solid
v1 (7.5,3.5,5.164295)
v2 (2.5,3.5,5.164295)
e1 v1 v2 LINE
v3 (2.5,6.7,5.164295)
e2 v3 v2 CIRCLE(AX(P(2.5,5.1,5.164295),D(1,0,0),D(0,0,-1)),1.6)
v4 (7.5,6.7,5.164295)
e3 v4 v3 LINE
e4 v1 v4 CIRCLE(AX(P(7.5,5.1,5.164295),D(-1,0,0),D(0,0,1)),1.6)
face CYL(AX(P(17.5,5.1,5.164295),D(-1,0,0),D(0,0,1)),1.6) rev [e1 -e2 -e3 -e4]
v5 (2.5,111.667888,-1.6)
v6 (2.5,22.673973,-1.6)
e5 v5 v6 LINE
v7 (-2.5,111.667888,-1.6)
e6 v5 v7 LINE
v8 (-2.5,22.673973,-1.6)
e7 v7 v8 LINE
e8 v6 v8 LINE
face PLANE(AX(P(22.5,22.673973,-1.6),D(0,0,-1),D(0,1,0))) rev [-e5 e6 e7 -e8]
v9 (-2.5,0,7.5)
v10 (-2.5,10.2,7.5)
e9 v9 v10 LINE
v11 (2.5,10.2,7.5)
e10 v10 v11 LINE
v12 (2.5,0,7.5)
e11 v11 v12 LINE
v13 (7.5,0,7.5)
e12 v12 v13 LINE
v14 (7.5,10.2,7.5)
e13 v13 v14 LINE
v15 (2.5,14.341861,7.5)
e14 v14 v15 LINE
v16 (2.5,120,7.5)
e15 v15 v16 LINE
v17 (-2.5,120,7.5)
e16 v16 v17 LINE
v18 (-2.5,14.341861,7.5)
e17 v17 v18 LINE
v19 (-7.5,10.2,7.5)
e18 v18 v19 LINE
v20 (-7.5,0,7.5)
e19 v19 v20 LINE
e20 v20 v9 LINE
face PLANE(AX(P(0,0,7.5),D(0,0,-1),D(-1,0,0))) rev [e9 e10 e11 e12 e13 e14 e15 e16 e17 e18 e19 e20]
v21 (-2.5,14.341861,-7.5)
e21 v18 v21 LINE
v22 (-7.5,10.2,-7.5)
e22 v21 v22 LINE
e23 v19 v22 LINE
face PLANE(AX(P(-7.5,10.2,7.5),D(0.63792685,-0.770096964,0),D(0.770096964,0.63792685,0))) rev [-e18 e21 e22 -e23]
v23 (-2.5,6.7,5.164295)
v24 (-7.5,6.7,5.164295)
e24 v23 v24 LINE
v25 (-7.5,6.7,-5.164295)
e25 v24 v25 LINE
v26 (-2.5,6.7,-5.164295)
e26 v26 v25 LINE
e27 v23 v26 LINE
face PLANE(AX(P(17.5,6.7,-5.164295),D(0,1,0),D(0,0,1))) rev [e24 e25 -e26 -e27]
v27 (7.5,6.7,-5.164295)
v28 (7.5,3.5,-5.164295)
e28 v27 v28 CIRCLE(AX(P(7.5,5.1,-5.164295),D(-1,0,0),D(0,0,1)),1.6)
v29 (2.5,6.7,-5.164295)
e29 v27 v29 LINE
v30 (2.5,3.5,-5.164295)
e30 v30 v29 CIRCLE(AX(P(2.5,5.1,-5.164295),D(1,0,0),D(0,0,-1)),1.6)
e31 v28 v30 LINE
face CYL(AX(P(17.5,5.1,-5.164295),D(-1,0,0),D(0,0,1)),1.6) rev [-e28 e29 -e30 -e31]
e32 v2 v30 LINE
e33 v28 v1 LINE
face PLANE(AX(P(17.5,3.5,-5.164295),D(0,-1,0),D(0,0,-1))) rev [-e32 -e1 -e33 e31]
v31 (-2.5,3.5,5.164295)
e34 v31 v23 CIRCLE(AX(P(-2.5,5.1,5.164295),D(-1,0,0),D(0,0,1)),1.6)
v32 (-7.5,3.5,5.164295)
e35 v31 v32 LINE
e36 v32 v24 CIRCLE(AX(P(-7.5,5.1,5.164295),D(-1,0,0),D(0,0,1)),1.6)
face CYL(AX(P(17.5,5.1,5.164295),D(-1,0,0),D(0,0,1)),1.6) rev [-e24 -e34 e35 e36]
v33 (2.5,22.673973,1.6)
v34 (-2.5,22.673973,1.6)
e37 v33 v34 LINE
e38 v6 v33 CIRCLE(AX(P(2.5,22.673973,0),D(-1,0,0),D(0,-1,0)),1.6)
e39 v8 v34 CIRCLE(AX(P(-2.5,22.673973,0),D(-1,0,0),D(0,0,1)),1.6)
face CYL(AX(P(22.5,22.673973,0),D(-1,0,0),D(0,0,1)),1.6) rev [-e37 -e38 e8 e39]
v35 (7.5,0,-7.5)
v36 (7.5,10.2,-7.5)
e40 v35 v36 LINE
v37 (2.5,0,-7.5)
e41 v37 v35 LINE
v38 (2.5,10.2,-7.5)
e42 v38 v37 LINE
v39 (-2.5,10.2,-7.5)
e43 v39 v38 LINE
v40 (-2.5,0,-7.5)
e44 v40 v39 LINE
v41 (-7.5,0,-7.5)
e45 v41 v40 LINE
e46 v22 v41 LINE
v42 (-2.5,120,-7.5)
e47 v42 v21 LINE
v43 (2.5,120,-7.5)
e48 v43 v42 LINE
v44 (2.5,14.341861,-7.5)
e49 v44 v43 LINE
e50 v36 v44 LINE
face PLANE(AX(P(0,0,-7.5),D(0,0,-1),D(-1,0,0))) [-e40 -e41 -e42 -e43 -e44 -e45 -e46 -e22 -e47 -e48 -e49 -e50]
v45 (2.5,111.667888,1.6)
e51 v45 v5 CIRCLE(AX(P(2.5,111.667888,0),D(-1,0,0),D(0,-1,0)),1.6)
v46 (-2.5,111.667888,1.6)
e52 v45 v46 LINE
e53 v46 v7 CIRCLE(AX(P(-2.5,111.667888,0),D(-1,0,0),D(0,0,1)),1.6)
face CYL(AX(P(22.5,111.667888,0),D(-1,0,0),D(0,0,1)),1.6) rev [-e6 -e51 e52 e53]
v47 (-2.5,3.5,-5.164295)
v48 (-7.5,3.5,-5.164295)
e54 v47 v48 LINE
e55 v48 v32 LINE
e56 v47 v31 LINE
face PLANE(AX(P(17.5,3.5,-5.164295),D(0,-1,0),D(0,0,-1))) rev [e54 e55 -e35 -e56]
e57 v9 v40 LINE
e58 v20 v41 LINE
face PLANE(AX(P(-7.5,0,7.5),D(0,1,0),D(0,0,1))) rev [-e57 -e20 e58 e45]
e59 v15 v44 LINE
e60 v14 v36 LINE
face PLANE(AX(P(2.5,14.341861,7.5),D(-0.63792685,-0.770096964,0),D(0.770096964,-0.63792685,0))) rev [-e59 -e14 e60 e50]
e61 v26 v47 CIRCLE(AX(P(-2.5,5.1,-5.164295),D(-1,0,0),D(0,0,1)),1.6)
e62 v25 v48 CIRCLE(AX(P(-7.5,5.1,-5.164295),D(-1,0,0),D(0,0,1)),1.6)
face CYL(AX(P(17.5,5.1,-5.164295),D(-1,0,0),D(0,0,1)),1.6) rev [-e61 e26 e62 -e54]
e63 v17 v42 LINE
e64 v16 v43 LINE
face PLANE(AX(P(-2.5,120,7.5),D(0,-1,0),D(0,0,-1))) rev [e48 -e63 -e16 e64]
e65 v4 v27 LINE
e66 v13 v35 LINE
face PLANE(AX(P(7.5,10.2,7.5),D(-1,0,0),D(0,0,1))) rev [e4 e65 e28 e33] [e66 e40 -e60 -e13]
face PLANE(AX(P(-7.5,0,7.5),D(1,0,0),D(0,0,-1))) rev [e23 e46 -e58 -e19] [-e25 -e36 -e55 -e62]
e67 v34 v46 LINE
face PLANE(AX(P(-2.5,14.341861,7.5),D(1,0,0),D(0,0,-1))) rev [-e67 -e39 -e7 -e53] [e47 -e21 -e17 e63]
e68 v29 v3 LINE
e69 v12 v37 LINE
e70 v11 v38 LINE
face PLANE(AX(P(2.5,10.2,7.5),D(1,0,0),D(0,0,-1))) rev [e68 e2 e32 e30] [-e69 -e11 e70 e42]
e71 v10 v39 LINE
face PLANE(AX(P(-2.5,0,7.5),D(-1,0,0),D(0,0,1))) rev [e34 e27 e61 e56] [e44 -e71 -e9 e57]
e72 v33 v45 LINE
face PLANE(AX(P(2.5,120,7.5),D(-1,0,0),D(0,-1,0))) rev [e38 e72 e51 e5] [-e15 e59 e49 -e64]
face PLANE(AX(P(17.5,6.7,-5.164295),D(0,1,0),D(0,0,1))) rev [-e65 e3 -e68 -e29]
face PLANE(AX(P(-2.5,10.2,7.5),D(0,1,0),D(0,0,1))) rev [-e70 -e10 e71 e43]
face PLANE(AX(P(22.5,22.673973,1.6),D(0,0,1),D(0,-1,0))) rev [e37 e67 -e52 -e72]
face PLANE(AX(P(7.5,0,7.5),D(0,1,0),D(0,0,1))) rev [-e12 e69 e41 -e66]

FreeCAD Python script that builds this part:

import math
import FreeCAD as App
import Part
import Sketcher
Q = App.Units.Quantity


def add_polygon(sketch, points):
    """Adds a closed chain of lines whose ends are joined by coincident constraints."""
    first, n = sketch.GeometryCount, len(points)
    for a, b in zip(points, points[1:] + points[:1]):
        sketch.addGeometry(Part.LineSegment(App.Vector(*a, 0), App.Vector(*b, 0)), False)
    for i in range(n):
        sketch.addConstraint(Sketcher.Constraint("Coincident", first + i, 2, first + (i + 1) % n, 1))

doc = App.newDocument("Part")
body = doc.addObject("PartDesign::Body", "Body")

# Sketch on XY plane
sketch1 = doc.addObject("Sketcher::SketchObject", "Sketch")
body.addObject(sketch1)
sketch1.AttachmentSupport = (doc.XY_Plane, [""])
sketch1.MapMode = "FlatFace"
add_polygon(sketch1, [(-8, 0), (-2, 0), (-2, 10), (2, 10), (2, 0), (8, 0), (8, 10), (2, 14), (2, 120), (-2, 120), (-2, 14), (-8, 10)])  # lines 0-11
sketch1.addConstraint([
    Sketcher.Constraint("Horizontal", 0),
    Sketcher.Constraint("Vertical", 1),
    Sketcher.Constraint("Horizontal", 2),
    Sketcher.Constraint("Vertical", 3),
    Sketcher.Constraint("Horizontal", 4),
    Sketcher.Constraint("Vertical", 5),
    Sketcher.Constraint("Vertical", 7),
    Sketcher.Constraint("Horizontal", 8),
    Sketcher.Constraint("Vertical", 9),
    Sketcher.Constraint("Vertical", 11),
    Sketcher.Constraint("Symmetric", 0, 2, 3, 2, -1, 1),
    Sketcher.Constraint("Symmetric", 6, 2, 9, 2, -2),
    Sketcher.Constraint("Symmetric", 5, 2, 10, 2, -2),
    Sketcher.Constraint("PointOnObject", 0, 2, -1),
    Sketcher.Constraint("Horizontal", 2, 2, 5, 2),
    Sketcher.Constraint("Vertical", 3, 2, 6, 2),
    Sketcher.Constraint("Equal", 0, 2),
    Sketcher.Constraint("DistanceX", 0, 1, 0, 2, Q("5 mm")),
    Sketcher.Constraint("DistanceY", 1, 1, 1, 2, Q("10.2 mm")),
    Sketcher.Constraint("DistanceY", -1, 1, 7, 2, Q("120 mm")),
    Sketcher.Constraint("DistanceY", 7, 1, 7, 2, Q("105.658139 mm")),
])
pad1 = doc.addObject("PartDesign::Pad", "Pad")
body.addObject(pad1)
pad1.Profile = sketch1
pad1.Length = 15
pad1.Midplane = True

# Sketch on YZ plane
sketch2 = doc.addObject("Sketcher::SketchObject", "Sketch001")
body.addObject(sketch2)
sketch2.AttachmentSupport = (doc.YZ_Plane, [""])
sketch2.MapMode = "FlatFace"
sketch2.AttachmentOffset = App.Placement(App.Vector(0, 0, -7.5), App.Rotation())
sketch2.addGeometry([
    Part.LineSegment(App.Vector(6.7, 5.2, 0), App.Vector(6.7, -5.2, 0)),
    Part.ArcOfCircle(Part.Circle(App.Vector(5.1, -5.2, 0), App.Vector(0, 0, 1), 1.6), math.radians(180), math.radians(360)),
    Part.LineSegment(App.Vector(3.5, -5.2, 0), App.Vector(3.5, 5.2, 0)),
    Part.ArcOfCircle(Part.Circle(App.Vector(5.1, 5.2, 0), App.Vector(0, 0, 1), 1.6), math.radians(0), math.radians(180)),
], False)
sketch2.addConstraint([
    Sketcher.Constraint("Tangent", 0, 2, 1, 2),
    Sketcher.Constraint("Tangent", 1, 1, 2, 1),
    Sketcher.Constraint("Tangent", 2, 2, 3, 2),
    Sketcher.Constraint("Tangent", 3, 1, 0, 1),
    Sketcher.Constraint("Vertical", 0),
    Sketcher.Constraint("Vertical", 2),
    Sketcher.Constraint("Radius", 1, Q("1.6 mm")),
    Sketcher.Constraint("DistanceX", -1, 1, 1, 3, Q("5.1 mm")),
    Sketcher.Constraint("DistanceY", 0, 2, 0, 1, Q("10.32859 mm")),
    Sketcher.Constraint("DistanceY", 1, 3, -1, 1, Q("5.164295 mm")),
])
pocket1 = doc.addObject("PartDesign::Pocket", "Pocket")
body.addObject(pocket1)
pocket1.Profile = sketch2
pocket1.Length = 25
pocket1.Reversed = True

# Sketch on YZ plane
sketch3 = doc.addObject("Sketcher::SketchObject", "Sketch002")
body.addObject(sketch3)
sketch3.AttachmentSupport = (doc.YZ_Plane, [""])
sketch3.MapMode = "FlatFace"
sketch3.AttachmentOffset = App.Placement(App.Vector(0, 0, -2.5), App.Rotation())
sketch3.addGeometry([
    Part.LineSegment(App.Vector(111.7, -1.6, 0), App.Vector(22.7, -1.6, 0)),
    Part.ArcOfCircle(Part.Circle(App.Vector(22.7, 0, 0), App.Vector(0, 0, 1), 1.6), math.radians(90), math.radians(270)),
    Part.LineSegment(App.Vector(22.7, 1.6, 0), App.Vector(111.7, 1.6, 0)),
    Part.ArcOfCircle(Part.Circle(App.Vector(111.7, 0, 0), App.Vector(0, 0, 1), 1.6), math.radians(-90), math.radians(90)),
], False)
sketch3.addConstraint([
    Sketcher.Constraint("Tangent", 0, 2, 1, 2),
    Sketcher.Constraint("Tangent", 1, 1, 2, 1),
    Sketcher.Constraint("Tangent", 2, 2, 3, 2),
    Sketcher.Constraint("Tangent", 3, 1, 0, 1),
    Sketcher.Constraint("Horizontal", 0),
    Sketcher.Constraint("Horizontal", 2),
    Sketcher.Constraint("PointOnObject", 1, 3, -1),
    Sketcher.Constraint("Radius", 1, Q("1.6 mm")),
    Sketcher.Constraint("DistanceX", 0, 2, 0, 1, Q("88.993915 mm")),
    Sketcher.Constraint("DistanceX", -1, 1, 3, 3, Q("111.667888 mm")),
])
pocket2 = doc.addObject("PartDesign::Pocket", "Pocket001")
body.addObject(pocket2)
pocket2.Profile = sketch3
pocket2.Length = 25
pocket2.Reversed = True

doc.recompute()
